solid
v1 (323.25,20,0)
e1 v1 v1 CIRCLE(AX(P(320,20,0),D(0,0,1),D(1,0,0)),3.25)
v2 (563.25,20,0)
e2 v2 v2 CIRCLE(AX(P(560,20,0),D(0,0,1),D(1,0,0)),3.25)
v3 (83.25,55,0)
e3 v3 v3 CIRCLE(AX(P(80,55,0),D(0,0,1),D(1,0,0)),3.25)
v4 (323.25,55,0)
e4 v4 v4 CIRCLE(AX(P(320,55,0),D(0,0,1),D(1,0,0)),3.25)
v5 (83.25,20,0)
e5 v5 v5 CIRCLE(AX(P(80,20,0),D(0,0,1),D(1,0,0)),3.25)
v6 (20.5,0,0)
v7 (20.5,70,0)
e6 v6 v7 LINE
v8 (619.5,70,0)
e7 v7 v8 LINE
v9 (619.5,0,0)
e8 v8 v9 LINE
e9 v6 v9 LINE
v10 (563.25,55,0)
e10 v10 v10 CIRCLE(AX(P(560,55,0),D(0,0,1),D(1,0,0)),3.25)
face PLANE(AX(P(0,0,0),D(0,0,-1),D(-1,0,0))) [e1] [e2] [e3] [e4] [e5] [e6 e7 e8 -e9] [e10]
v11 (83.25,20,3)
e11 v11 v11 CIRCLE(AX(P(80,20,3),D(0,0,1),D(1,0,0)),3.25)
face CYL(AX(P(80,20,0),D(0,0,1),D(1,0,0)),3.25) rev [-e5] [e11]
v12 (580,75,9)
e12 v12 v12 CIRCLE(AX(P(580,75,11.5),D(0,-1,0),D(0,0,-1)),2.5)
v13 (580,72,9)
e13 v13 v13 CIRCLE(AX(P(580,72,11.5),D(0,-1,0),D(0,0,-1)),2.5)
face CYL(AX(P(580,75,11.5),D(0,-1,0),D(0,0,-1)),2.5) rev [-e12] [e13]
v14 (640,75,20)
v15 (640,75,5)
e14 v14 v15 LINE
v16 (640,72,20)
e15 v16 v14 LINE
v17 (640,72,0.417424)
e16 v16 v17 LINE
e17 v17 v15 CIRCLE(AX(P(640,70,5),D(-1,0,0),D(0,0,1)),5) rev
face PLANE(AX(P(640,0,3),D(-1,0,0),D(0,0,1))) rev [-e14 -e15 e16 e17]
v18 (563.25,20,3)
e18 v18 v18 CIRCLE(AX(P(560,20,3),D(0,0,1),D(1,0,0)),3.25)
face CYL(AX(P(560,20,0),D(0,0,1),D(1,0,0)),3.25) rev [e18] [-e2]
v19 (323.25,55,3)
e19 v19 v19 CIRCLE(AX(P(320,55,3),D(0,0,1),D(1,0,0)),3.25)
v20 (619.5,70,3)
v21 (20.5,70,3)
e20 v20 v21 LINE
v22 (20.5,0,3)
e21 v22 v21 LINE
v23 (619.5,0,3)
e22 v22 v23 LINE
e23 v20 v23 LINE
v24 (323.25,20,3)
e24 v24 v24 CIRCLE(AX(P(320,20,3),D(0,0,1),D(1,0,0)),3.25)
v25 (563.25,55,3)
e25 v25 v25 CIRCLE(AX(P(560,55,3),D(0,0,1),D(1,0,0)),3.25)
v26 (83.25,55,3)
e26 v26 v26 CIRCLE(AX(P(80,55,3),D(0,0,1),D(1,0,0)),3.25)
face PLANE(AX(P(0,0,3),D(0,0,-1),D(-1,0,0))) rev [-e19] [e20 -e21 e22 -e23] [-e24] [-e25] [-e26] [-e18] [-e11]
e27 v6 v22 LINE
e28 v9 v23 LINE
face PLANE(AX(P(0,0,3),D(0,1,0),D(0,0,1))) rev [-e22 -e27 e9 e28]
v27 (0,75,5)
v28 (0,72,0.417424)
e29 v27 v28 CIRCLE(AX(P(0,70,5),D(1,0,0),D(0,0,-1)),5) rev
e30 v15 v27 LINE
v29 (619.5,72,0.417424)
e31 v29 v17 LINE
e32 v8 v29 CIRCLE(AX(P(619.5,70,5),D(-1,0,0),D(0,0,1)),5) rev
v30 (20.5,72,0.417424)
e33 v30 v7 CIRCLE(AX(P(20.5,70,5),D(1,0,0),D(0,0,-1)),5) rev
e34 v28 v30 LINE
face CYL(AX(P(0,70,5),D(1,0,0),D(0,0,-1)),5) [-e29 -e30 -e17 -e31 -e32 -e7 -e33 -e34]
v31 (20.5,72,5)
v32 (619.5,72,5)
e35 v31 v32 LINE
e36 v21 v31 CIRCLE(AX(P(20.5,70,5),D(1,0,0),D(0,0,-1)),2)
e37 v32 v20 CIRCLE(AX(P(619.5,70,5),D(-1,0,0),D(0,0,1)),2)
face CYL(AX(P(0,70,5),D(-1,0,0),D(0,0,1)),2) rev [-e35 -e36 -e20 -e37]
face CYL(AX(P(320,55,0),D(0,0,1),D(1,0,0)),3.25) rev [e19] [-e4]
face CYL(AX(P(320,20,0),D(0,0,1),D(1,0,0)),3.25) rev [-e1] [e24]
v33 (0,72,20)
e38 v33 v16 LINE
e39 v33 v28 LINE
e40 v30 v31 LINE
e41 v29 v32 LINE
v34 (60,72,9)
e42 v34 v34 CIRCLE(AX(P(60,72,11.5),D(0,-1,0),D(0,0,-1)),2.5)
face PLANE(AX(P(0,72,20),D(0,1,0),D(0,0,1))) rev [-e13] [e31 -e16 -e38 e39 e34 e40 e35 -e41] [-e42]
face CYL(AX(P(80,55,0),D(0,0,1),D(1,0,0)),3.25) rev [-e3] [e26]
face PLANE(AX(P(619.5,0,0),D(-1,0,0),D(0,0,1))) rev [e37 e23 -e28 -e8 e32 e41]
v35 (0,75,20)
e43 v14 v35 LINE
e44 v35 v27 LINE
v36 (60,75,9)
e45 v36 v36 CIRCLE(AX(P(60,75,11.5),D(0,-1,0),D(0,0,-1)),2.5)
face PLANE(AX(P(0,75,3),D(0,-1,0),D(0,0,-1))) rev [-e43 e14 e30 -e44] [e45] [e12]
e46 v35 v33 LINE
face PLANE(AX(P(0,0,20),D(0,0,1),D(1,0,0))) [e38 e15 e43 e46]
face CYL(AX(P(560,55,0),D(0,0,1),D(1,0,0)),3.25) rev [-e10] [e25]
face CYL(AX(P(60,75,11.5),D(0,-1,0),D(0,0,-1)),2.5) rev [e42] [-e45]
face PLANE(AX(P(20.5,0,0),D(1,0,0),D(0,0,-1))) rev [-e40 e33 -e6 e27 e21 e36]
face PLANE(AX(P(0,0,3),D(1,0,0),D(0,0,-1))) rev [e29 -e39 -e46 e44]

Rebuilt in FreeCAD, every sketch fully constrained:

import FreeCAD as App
import Part
import Sketcher
from FreeCAD import Vector


def edges_at(feature, points):
    """Names of the edges that pass closest to the given points."""
    edges = feature.Shape.Edges
    near = lambda p: min(range(len(edges)), key=lambda i: edges[i].distToShape(Part.Vertex(*p))[0])
    return sorted({f"Edge{near(p) + 1}" for p in points})

doc = App.newDocument("Part")
params = doc.addObject("Spreadsheet::Sheet", "Params")
for row, (alias, value) in enumerate([
    ("sketch1_width", "640 mm"),
    ("sketch1_height", "75 mm"),
    ("pad1_length", "3 mm"),
    ("sketch2_width", "640 mm"),
    ("sketch2_height", "3 mm"),
    ("pad2_length", "17 mm"),
    ("fillet_radius", "5 mm"),
    ("sketch3_diameter", "5 mm"),
    ("sketch4_diameter", "6.5 mm"),
    ("sketch5_height", "72 mm"),
    ("sketch5_width", "20.5 mm"),
    ("fillet2_radius", "2 mm"),
], start=1):
    params.set(f"A{row}", alias)
    params.set(f"B{row}", "=" + value)
    params.setAlias(f"B{row}", alias)

body = doc.addObject("PartDesign::Body", "Body")

# Sketch on XY plane
sketch1 = body.newObject("Sketcher::SketchObject", "Sketch")
sketch1.AttachmentSupport = (doc.getObject("XY_Plane"), [""])
sketch1.MapMode = "FlatFace"
sketch1.addGeometry([
    Part.LineSegment(Vector(0, 75, 0), Vector(0, 0, 0)),
    Part.LineSegment(Vector(0, 0, 0), Vector(640, 0, 0)),
    Part.LineSegment(Vector(640, 0, 0), Vector(640, 75, 0)),
    Part.LineSegment(Vector(640, 75, 0), Vector(0, 75, 0)),
], False)
sketch1.addConstraint([
    Sketcher.Constraint("Coincident", 0, 2, 1, 1),
    Sketcher.Constraint("Coincident", 1, 2, 2, 1),
    Sketcher.Constraint("Coincident", 2, 2, 3, 1),
    Sketcher.Constraint("Coincident", 3, 2, 0, 1),
    Sketcher.Constraint("Vertical", 0),
    Sketcher.Constraint("Horizontal", 1),
    Sketcher.Constraint("Vertical", 2),
    Sketcher.Constraint("Horizontal", 3),
    Sketcher.Constraint("Coincident", 0, 2, -1, 1),
    Sketcher.Constraint("DistanceX", 1, 1, 1, 2, 640.0),
    Sketcher.Constraint("DistanceY", 0, 2, 0, 1, 75.0),
])
sketch1.setExpression("Constraints[9]", "Params.sketch1_width")
sketch1.setExpression("Constraints[10]", "Params.sketch1_height")
pad1 = body.newObject("PartDesign::Pad", "Pad")
pad1.Profile = sketch1
pad1.setExpression("Length", "Params.pad1_length")

# Sketch on XY plane
sketch2 = body.newObject("Sketcher::SketchObject", "Sketch001")
sketch2.AttachmentSupport = (doc.getObject("XY_Plane"), [""])
sketch2.MapMode = "FlatFace"
sketch2.AttachmentOffset = App.Placement(Vector(0, 0, 3), App.Rotation())
sketch2.addGeometry([
    Part.LineSegment(Vector(0, 75, 0), Vector(0, 72, 0)),
    Part.LineSegment(Vector(0, 72, 0), Vector(640, 72, 0)),
    Part.LineSegment(Vector(640, 72, 0), Vector(640, 75, 0)),
    Part.LineSegment(Vector(640, 75, 0), Vector(0, 75, 0)),
], False)
sketch2.addConstraint([
    Sketcher.Constraint("Coincident", 0, 2, 1, 1),
    Sketcher.Constraint("Coincident", 1, 2, 2, 1),
    Sketcher.Constraint("Coincident", 2, 2, 3, 1),
    Sketcher.Constraint("Coincident", 3, 2, 0, 1),
    Sketcher.Constraint("Vertical", 0),
    Sketcher.Constraint("Horizontal", 1),
    Sketcher.Constraint("Vertical", 2),
    Sketcher.Constraint("Horizontal", 3),
    Sketcher.Constraint("PointOnObject", 0, 2, -2),
    Sketcher.Constraint("DistanceX", 1, 1, 1, 2, 640.0),
    Sketcher.Constraint("DistanceY", 0, 2, 0, 1, 3.0),
    Sketcher.Constraint("DistanceY", -1, 1, 0, 2, 72.0),
])
sketch2.setExpression("Constraints[9]", "Params.sketch2_width")
sketch2.setExpression("Constraints[10]", "Params.sketch2_height")
pad2 = body.newObject("PartDesign::Pad", "Pad001")
pad2.Profile = sketch2
pad2.setExpression("Length", "Params.pad2_length")
doc.recompute()

fillet = body.newObject("PartDesign::Fillet", "Fillet")
fillet.Base = (pad2, edges_at(pad2, [(320, 75, 0)]))
fillet.setExpression("Radius", "Params.fillet_radius")

# Sketch on XZ plane
sketch3 = body.newObject("Sketcher::SketchObject", "Sketch002")
sketch3.AttachmentSupport = (doc.getObject("XZ_Plane"), [""])
sketch3.MapMode = "FlatFace"
sketch3.AttachmentOffset = App.Placement(Vector(0, 0, -72), App.Rotation())
sketch3.addGeometry([
    Part.Circle(Vector(60, 11.5, 0), Vector(0, 0, 1), 2.5),
    Part.Circle(Vector(580, 11.5, 0), Vector(0, 0, 1), 2.5),
], False)
sketch3.addConstraint([
    Sketcher.Constraint("Equal", 0, 1),
    Sketcher.Constraint("Horizontal", 0, 3, 1, 3),
    Sketcher.Constraint("Diameter", 0, 5.0),
    Sketcher.Constraint("DistanceX", -1, 1, 0, 3, 60.0),
    Sketcher.Constraint("DistanceX", -1, 1, 1, 3, 580.0),
    Sketcher.Constraint("DistanceY", -1, 1, 0, 3, 11.5),
])
sketch3.setExpression("Constraints[2]", "Params.sketch3_diameter")
pocket1 = body.newObject("PartDesign::Pocket", "Pocket")
pocket1.Profile = sketch3
pocket1.Type = "ThroughAll"

# Sketch on XY plane
sketch4 = body.newObject("Sketcher::SketchObject", "Sketch003")
sketch4.AttachmentSupport = (doc.getObject("XY_Plane"), [""])
sketch4.MapMode = "FlatFace"
sketch4.AttachmentOffset = App.Placement(Vector(0, 0, 3), App.Rotation())
sketch4.addGeometry([
    Part.Circle(Vector(80, 55, 0), Vector(0, 0, 1), 3.2),  # 0
    Part.Circle(Vector(80, 20, 0), Vector(0, 0, 1), 3.2),  # 1
    Part.Circle(Vector(320, 55, 0), Vector(0, 0, 1), 3.2),  # 2
    Part.Circle(Vector(320, 20, 0), Vector(0, 0, 1), 3.2),  # 3
    Part.Circle(Vector(560, 55, 0), Vector(0, 0, 1), 3.2),  # 4
    Part.Circle(Vector(560, 20, 0), Vector(0, 0, 1), 3.2),  # 5
], False)
sketch4.addConstraint([
    Sketcher.Constraint("Equal", 0, 1),
    Sketcher.Constraint("Equal", 1, 2),
    Sketcher.Constraint("Equal", 2, 3),
    Sketcher.Constraint("Equal", 3, 4),
    Sketcher.Constraint("Equal", 4, 5),
    Sketcher.Constraint("Horizontal", 0, 3, 2, 3),
    Sketcher.Constraint("Horizontal", 1, 3, 3, 3),
    Sketcher.Constraint("Horizontal", 2, 3, 4, 3),
    Sketcher.Constraint("Horizontal", 3, 3, 5, 3),
    Sketcher.Constraint("Vertical", 0, 3, 1, 3),
    Sketcher.Constraint("Vertical", 2, 3, 3, 3),
    Sketcher.Constraint("Vertical", 4, 3, 5, 3),
    Sketcher.Constraint("Diameter", 0, 6.5),
    Sketcher.Constraint("DistanceX", -1, 1, 0, 3, 80.0),
    Sketcher.Constraint("DistanceY", -1, 1, 0, 3, 55.0),
    Sketcher.Constraint("DistanceY", -1, 1, 1, 3, 20.0),
    Sketcher.Constraint("DistanceX", -1, 1, 2, 3, 320.0),
    Sketcher.Constraint("DistanceX", -1, 1, 4, 3, 560.0),
])
sketch4.setExpression("Constraints[12]", "Params.sketch4_diameter")
pocket2 = body.newObject("PartDesign::Pocket", "Pocket001")
pocket2.Profile = sketch4
pocket2.Type = "ThroughAll"

# Sketch on XY plane
sketch5 = body.newObject("Sketcher::SketchObject", "Sketch004")
sketch5.AttachmentSupport = (doc.getObject("XY_Plane"), [""])
sketch5.MapMode = "FlatFace"
sketch5.AttachmentOffset = App.Placement(Vector(0, 0, 3), App.Rotation())
sketch5.addGeometry([
    Part.LineSegment(Vector(0, 72, 0), Vector(0, 0, 0)),  # 0
    Part.LineSegment(Vector(0, 0, 0), Vector(20, 0, 0)),  # 1
    Part.LineSegment(Vector(20, 0, 0), Vector(20, 72, 0)),  # 2
    Part.LineSegment(Vector(20, 72, 0), Vector(0, 72, 0)),  # 3
    Part.LineSegment(Vector(620, 72, 0), Vector(620, 0, 0)),  # 4
    Part.LineSegment(Vector(620, 0, 0), Vector(640, 0, 0)),  # 5
    Part.LineSegment(Vector(640, 0, 0), Vector(640, 72, 0)),  # 6
    Part.LineSegment(Vector(640, 72, 0), Vector(620, 72, 0)),  # 7
], False)
sketch5.addConstraint([
    Sketcher.Constraint("Coincident", 0, 2, 1, 1),
    Sketcher.Constraint("Coincident", 1, 2, 2, 1),
    Sketcher.Constraint("Coincident", 2, 2, 3, 1),
    Sketcher.Constraint("Coincident", 3, 2, 0, 1),
    Sketcher.Constraint("Coincident", 4, 2, 5, 1),
    Sketcher.Constraint("Coincident", 5, 2, 6, 1),
    Sketcher.Constraint("Coincident", 6, 2, 7, 1),
    Sketcher.Constraint("Coincident", 7, 2, 4, 1),
    Sketcher.Constraint("Vertical", 0),
    Sketcher.Constraint("Horizontal", 1),
    Sketcher.Constraint("Vertical", 2),
    Sketcher.Constraint("Horizontal", 3),
    Sketcher.Constraint("Vertical", 4),
    Sketcher.Constraint("Horizontal", 5),
    Sketcher.Constraint("Vertical", 6),
    Sketcher.Constraint("Horizontal", 7),
    Sketcher.Constraint("Coincident", 0, 2, -1, 1),
    Sketcher.Constraint("PointOnObject", 4, 2, -1),
    Sketcher.Constraint("Horizontal", 3, 2, 6, 2),
    Sketcher.Constraint("Equal", 3, 5),
    Sketcher.Constraint("DistanceY", 0, 2, 0, 1, 72.0),
    Sketcher.Constraint("DistanceX", 1, 1, 1, 2, 20.5),
    Sketcher.Constraint("DistanceX", -1, 1, 5, 2, 640.0),
])
sketch5.setExpression("Constraints[20]", "Params.sketch5_height")
sketch5.setExpression("Constraints[21]", "Params.sketch5_width")
pocket3 = body.newObject("PartDesign::Pocket", "Pocket002")
pocket3.Profile = sketch5
pocket3.Type = "ThroughAll"
doc.recompute()

fillet2 = body.newObject("PartDesign::Fillet", "Fillet001")
fillet2.Base = (pocket3, edges_at(pocket3, [(320, 72, 3)]))
fillet2.setExpression("Radius", "Params.fillet2_radius")

doc.recompute()
